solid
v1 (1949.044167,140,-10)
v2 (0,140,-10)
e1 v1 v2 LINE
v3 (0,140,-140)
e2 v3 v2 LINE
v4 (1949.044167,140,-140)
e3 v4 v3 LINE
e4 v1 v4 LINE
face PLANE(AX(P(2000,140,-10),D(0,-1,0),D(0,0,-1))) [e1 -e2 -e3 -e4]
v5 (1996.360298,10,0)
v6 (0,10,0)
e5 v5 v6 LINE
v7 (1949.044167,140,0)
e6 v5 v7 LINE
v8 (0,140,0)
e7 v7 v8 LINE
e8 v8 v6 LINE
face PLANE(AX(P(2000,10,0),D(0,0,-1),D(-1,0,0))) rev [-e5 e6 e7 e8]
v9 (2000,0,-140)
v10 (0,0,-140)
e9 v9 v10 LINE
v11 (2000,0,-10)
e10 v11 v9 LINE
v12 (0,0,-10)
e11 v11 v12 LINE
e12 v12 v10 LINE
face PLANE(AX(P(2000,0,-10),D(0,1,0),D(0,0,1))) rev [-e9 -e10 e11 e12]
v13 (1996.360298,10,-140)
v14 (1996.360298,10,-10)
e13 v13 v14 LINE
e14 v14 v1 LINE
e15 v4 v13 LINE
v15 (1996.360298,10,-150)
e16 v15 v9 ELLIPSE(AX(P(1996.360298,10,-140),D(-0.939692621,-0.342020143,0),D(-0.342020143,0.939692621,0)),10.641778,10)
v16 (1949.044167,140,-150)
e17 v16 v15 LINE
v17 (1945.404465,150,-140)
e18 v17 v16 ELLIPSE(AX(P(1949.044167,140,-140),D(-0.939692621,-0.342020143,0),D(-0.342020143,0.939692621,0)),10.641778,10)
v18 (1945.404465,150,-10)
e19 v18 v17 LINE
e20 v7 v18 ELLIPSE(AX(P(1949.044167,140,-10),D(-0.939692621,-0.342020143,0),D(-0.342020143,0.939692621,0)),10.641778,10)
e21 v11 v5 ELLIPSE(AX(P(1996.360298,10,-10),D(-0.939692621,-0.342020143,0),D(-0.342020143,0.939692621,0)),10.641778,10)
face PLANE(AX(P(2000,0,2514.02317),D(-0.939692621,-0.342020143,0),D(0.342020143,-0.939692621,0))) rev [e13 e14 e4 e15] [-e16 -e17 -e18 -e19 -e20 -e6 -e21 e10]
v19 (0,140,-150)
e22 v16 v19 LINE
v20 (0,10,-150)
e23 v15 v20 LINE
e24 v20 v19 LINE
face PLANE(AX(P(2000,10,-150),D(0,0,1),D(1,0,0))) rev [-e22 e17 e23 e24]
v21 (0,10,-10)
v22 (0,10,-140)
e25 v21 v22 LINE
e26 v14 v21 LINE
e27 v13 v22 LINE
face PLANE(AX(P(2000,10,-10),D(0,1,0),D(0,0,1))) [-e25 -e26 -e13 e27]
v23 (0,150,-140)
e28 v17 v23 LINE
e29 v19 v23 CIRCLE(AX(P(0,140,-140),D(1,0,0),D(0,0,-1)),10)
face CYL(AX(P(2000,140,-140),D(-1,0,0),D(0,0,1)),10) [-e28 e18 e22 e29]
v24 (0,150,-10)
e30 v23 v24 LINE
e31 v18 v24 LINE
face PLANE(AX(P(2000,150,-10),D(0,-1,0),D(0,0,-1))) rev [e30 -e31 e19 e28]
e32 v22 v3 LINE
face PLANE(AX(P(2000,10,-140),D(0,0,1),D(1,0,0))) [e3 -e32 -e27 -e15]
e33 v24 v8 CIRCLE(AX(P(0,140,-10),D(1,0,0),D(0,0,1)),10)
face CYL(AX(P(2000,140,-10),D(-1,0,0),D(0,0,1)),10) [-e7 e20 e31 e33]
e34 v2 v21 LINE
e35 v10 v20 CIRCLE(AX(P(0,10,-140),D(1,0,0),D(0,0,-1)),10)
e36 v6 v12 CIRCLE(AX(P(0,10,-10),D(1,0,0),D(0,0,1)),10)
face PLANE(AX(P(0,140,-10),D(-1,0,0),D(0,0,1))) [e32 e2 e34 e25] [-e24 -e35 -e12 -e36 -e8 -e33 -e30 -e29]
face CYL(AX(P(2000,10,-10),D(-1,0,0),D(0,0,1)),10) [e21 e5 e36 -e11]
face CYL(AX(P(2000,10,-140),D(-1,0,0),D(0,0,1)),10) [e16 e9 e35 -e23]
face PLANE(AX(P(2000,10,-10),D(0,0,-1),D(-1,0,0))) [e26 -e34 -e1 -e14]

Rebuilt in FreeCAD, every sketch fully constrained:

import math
import FreeCAD as App
import Part
import Sketcher
Q = App.Units.Quantity


def add_polygon(sketch, points):
    """Adds a closed chain of lines whose ends are joined by coincident constraints."""
    first, n = sketch.GeometryCount, len(points)
    for a, b in zip(points, points[1:] + points[:1]):
        sketch.addGeometry(Part.LineSegment(App.Vector(*a, 0), App.Vector(*b, 0)), False)
    for i in range(n):
        sketch.addConstraint(Sketcher.Constraint("Coincident", first + i, 2, first + (i + 1) % n, 1))

doc = App.newDocument("Part")
params = doc.addObject("Spreadsheet::Sheet", "Params")
for row, (alias, value) in enumerate([
    ("sketch1_radius", "10 mm"),
    ("sketch1_width", "130 mm"),
    ("pad1_length", "2000 mm"),
], start=1):
    params.set(f"A{row}", alias)
    params.set(f"B{row}", "=" + value)
    params.setAlias(f"B{row}", alias)

body = doc.addObject("PartDesign::Body", "Body")

sketch1 = body.newObject("Sketcher::SketchObject", "Sketch")
sketch1.AttachmentSupport = (doc.getObject("YZ_Plane"), [""])
sketch1.MapMode = "FlatFace"
sketch1.addGeometry(Part.LineSegment(App.Vector(0, -10, 0), App.Vector(0, -140, 0)), False)
sketch1.addGeometry(Part.ArcOfCircle(Part.Circle(App.Vector(10, -140, 0), App.Vector(0, 0, 1), 10), math.radians(180), math.radians(270)), False)
sketch1.addGeometry(Part.LineSegment(App.Vector(10, -150, 0), App.Vector(140, -150, 0)), False)
sketch1.addGeometry(Part.ArcOfCircle(Part.Circle(App.Vector(140, -140, 0), App.Vector(0, 0, 1), 10), math.radians(-90), math.radians(0)), False)
sketch1.addGeometry(Part.LineSegment(App.Vector(150, -140, 0), App.Vector(150, -10, 0)), False)
sketch1.addGeometry(Part.ArcOfCircle(Part.Circle(App.Vector(140, -10, 0), App.Vector(0, 0, 1), 10), math.radians(0), math.radians(90)), False)
sketch1.addGeometry(Part.LineSegment(App.Vector(140, 0, 0), App.Vector(10, 0, 0)), False)
sketch1.addGeometry(Part.ArcOfCircle(Part.Circle(App.Vector(10, -10, 0), App.Vector(0, 0, 1), 10), math.radians(90), math.radians(180)), False)
add_polygon(sketch1, [(10, -140), (10, -10), (140, -10), (140, -140)])
sketch1.addConstraint([
    Sketcher.Constraint("Tangent", 0, 2, 1, 1),
    Sketcher.Constraint("Tangent", 1, 2, 2, 1),
    Sketcher.Constraint("Tangent", 2, 2, 3, 1),
    Sketcher.Constraint("Tangent", 3, 2, 4, 1),
    Sketcher.Constraint("Tangent", 4, 2, 5, 1),
    Sketcher.Constraint("Tangent", 5, 2, 6, 1),
    Sketcher.Constraint("Tangent", 6, 2, 7, 1),
    Sketcher.Constraint("Tangent", 7, 2, 0, 1),
    Sketcher.Constraint("Vertical", 0),
    Sketcher.Constraint("Horizontal", 2),
    Sketcher.Constraint("Vertical", 4),
    Sketcher.Constraint("Horizontal", 6),
    Sketcher.Constraint("Vertical", 8),
    Sketcher.Constraint("Horizontal", 9),
    Sketcher.Constraint("Vertical", 10),
    Sketcher.Constraint("Horizontal", 11),
    Sketcher.Constraint("Coincident", 8, 2, 7, 3),
    Sketcher.Constraint("Coincident", 9, 2, 5, 3),
    Sketcher.Constraint("Coincident", 10, 2, 3, 3),
    Sketcher.Constraint("Equal", 1, 3),
    Sketcher.Constraint("PointOnObject", 0, 2, -2),
    Sketcher.Constraint("PointOnObject", 5, 2, -1),
    Sketcher.Constraint("Equal", 11, 0),
    Sketcher.Constraint("Radius", 1, 10.0),
    Sketcher.Constraint("DistanceX", 2, 1, 2, 2, 130.0),
])
sketch1.setExpression("Constraints[27]", "Params.sketch1_radius")
sketch1.setExpression("Constraints[28]", "Params.sketch1_width")
pad1 = body.newObject("PartDesign::Pad", "Pad")
pad1.Profile = sketch1
pad1.setExpression("Length", "Params.pad1_length")

sketch2 = body.newObject("Sketcher::SketchObject", "Sketch001")
sketch2.AttachmentSupport = (doc.getObject("XY_Plane"), [""])
sketch2.MapMode = "FlatFace"
add_polygon(sketch2, [(570, 3929), (3375, -3779), (10933, -1028), (8128, 6679)])
sketch2.addConstraint([
    Sketcher.Constraint("Perpendicular", 0, 1),
    Sketcher.Constraint("Perpendicular", 1, 2),
    Sketcher.Constraint("Perpendicular", 2, 3),
    Sketcher.Constraint("Angle", 0, Q("-70 deg")),
    Sketcher.Constraint("DistanceX", 3, 2, 1, 2, 10362.73),
    Sketcher.Constraint("Distance", 1, 8042.468448),
    Sketcher.Constraint("DistanceX", -1, 1, 1, 2, 10932.791359),
    Sketcher.Constraint("DistanceY", -1, 1, 2, 2, 6679.410338),
])
pocket1 = body.newObject("PartDesign::Pocket", "Pocket")
pocket1.Profile = sketch2
pocket1.Type = "ThroughAll"
pocket1.Midplane = True

doc.recompute()
